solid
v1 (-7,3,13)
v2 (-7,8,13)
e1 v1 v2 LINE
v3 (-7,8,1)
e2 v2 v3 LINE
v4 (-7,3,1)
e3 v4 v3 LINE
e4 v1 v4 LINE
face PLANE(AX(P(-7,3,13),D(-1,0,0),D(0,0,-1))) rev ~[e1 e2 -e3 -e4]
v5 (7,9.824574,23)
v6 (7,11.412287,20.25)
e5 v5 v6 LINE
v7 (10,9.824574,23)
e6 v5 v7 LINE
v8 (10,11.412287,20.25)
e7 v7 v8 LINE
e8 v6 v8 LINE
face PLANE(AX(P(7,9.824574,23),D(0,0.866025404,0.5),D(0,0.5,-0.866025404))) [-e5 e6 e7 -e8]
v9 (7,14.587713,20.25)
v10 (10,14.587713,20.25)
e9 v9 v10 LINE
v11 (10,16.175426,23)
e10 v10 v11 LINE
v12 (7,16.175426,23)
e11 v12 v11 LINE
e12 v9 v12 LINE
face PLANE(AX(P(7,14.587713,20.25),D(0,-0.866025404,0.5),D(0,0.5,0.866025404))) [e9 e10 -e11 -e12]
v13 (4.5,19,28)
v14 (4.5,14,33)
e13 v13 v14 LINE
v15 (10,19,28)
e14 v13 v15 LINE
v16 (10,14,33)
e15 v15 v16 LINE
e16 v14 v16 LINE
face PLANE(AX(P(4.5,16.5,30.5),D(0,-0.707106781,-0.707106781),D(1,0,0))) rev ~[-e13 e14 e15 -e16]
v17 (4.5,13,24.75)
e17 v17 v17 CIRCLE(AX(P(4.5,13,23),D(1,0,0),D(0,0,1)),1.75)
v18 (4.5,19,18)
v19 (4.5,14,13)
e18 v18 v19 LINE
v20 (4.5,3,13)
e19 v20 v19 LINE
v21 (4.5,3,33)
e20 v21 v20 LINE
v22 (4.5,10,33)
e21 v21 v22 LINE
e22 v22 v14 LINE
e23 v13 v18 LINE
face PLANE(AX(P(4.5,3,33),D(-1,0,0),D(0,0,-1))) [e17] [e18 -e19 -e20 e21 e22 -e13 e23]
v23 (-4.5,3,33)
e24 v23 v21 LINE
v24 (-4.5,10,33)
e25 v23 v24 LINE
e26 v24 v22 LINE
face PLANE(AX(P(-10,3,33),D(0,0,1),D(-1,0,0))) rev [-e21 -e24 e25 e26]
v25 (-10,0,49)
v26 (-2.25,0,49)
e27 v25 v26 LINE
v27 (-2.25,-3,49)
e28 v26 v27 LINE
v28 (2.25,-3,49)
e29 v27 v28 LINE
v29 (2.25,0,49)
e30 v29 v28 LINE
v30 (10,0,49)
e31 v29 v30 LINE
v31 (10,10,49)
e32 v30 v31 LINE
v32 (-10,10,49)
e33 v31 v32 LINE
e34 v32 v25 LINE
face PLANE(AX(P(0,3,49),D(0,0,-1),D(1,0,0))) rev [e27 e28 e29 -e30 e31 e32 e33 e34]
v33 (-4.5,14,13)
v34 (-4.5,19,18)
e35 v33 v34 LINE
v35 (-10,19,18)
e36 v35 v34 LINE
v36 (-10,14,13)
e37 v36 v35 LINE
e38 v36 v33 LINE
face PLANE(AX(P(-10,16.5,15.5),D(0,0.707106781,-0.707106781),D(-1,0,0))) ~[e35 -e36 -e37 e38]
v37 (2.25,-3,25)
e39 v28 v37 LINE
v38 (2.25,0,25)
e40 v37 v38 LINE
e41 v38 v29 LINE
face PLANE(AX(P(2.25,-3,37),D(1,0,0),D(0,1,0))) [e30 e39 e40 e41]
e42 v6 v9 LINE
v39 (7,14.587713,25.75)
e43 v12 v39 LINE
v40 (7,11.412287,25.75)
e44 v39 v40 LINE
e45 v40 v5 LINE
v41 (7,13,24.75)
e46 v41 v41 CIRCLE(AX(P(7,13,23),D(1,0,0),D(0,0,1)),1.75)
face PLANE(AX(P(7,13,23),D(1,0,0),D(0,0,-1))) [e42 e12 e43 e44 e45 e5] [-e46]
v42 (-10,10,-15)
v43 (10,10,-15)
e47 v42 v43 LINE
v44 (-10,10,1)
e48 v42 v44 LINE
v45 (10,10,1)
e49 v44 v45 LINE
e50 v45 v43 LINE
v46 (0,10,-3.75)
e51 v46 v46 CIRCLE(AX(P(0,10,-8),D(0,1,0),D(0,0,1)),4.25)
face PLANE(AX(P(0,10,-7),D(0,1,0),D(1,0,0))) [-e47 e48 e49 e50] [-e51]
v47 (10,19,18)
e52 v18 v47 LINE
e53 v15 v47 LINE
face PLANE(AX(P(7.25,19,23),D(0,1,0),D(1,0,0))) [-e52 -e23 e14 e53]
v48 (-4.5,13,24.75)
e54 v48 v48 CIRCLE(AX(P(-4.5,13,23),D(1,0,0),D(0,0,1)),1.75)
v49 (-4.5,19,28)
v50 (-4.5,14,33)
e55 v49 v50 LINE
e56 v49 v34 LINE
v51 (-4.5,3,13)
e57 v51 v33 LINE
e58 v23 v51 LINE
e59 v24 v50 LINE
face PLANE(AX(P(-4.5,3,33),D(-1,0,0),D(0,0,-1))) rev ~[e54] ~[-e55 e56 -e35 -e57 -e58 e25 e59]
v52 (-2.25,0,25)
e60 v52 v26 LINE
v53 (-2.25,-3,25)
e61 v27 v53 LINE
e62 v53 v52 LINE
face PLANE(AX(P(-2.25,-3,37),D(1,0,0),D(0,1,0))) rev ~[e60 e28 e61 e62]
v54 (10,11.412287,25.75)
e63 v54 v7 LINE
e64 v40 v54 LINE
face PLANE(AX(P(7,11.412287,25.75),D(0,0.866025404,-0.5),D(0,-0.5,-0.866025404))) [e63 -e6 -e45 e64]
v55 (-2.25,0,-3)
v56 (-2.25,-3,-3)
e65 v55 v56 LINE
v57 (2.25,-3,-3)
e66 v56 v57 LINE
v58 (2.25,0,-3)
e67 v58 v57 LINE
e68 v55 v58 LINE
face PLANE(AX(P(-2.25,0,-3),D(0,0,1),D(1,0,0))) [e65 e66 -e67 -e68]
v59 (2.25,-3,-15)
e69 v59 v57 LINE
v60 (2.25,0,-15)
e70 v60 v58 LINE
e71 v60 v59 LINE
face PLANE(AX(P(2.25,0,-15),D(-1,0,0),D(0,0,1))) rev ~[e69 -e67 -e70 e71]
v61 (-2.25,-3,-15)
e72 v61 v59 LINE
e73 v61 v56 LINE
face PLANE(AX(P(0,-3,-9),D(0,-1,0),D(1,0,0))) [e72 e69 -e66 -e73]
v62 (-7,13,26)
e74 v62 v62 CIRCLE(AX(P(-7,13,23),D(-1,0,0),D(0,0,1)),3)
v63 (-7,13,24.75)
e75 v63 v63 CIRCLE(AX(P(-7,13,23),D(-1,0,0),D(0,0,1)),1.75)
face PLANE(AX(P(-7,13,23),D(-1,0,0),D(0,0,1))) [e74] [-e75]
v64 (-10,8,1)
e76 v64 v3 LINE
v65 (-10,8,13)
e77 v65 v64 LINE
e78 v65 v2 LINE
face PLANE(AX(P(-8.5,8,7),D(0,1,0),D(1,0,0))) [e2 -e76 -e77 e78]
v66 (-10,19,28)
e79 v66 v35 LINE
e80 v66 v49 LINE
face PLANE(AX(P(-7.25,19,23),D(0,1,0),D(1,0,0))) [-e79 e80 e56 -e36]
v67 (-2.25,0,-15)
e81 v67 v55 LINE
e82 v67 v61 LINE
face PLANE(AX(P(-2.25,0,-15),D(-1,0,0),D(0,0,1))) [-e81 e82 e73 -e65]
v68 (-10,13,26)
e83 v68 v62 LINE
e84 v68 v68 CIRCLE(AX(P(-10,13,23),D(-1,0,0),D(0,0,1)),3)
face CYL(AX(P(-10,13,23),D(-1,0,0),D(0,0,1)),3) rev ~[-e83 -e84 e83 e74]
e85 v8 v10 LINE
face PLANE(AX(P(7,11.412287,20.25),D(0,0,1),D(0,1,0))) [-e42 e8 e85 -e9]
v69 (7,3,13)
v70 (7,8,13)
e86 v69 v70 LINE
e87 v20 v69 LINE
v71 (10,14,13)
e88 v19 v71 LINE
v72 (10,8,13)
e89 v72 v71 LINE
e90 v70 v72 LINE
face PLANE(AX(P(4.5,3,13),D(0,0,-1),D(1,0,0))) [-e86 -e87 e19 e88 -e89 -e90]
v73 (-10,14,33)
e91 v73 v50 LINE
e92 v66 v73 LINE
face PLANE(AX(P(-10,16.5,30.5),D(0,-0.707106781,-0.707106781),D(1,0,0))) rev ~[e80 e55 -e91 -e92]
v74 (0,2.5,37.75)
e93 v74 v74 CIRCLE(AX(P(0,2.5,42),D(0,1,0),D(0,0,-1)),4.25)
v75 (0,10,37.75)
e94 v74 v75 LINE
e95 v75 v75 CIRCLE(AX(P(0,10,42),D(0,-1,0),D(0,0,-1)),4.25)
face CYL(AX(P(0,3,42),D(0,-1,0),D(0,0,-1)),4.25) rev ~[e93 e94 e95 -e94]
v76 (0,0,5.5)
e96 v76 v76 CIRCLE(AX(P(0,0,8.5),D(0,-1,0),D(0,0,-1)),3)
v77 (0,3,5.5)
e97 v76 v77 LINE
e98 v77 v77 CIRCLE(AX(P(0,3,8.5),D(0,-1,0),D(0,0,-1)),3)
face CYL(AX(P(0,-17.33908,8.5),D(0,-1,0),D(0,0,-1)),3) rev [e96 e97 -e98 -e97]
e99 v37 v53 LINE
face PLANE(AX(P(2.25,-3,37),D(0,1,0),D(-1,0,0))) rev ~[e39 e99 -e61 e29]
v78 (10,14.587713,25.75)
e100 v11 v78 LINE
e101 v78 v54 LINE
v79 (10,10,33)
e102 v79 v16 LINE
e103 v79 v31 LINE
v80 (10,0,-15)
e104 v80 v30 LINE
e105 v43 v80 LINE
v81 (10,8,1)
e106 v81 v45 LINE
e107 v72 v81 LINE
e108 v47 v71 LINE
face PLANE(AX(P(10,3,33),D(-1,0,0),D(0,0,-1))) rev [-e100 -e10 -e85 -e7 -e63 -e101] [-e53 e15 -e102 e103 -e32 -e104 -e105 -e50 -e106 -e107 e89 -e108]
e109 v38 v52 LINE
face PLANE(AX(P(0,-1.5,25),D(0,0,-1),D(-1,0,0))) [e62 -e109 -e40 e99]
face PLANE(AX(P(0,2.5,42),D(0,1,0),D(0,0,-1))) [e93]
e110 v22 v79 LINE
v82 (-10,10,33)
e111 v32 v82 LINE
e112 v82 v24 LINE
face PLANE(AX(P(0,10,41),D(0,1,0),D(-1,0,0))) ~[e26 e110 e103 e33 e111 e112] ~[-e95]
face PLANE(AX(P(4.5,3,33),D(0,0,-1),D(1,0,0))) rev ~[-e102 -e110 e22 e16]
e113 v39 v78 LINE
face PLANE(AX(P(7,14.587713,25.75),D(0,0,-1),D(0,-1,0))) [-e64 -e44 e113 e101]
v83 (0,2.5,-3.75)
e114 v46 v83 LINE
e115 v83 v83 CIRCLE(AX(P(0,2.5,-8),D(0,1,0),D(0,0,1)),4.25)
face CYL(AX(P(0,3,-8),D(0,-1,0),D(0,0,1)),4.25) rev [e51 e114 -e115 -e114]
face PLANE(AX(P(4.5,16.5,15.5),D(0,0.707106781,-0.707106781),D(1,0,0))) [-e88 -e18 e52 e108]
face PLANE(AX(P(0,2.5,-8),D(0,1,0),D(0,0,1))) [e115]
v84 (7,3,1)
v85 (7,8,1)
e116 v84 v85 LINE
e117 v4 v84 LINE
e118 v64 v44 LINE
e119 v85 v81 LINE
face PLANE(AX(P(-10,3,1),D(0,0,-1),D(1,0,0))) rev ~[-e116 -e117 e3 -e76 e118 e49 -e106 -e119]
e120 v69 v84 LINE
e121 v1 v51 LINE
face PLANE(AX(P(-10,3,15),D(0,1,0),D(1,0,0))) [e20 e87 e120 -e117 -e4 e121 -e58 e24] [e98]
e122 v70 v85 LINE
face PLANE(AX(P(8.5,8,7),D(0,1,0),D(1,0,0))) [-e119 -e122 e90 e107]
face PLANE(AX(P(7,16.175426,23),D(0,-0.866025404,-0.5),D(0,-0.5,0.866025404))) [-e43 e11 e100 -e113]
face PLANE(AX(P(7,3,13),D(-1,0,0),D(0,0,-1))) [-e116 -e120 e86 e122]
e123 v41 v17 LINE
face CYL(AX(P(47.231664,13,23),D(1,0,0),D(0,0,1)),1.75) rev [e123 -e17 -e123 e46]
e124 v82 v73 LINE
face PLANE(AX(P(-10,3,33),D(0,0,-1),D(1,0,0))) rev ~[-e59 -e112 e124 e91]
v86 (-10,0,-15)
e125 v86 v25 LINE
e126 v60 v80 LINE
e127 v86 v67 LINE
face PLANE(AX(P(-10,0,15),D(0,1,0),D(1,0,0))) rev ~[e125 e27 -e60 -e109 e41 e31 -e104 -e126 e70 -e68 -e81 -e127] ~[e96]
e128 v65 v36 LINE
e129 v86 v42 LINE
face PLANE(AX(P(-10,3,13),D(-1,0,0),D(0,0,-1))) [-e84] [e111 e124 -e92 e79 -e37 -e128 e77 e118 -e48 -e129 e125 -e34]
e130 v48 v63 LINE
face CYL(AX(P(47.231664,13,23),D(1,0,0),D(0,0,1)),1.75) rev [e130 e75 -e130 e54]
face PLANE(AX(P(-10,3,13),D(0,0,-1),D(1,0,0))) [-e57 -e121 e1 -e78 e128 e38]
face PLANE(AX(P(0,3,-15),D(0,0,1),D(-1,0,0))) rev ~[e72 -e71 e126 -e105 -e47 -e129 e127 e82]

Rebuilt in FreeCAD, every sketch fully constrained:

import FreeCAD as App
import Part
import Sketcher
Q = App.Units.Quantity


def edges_at(feature, points):
    """Names of the edges that pass closest to the given points."""
    edges = feature.Shape.Edges
    near = lambda p: min(range(len(edges)), key=lambda i: edges[i].distToShape(Part.Vertex(*p))[0])
    return sorted({f"Edge{near(p) + 1}" for p in points})

doc = App.newDocument("Part")
params = doc.addObject("Spreadsheet::Sheet", "Params")
for row, (alias, value) in enumerate([
    ("sketch1_width", "20 mm"),
    ("sketch1_height", "30 mm"),
    ("pad1_length", "3 mm"),
    ("sketch2_height", "12 mm"),
    ("sketch2_width", "4.5 mm"),
    ("pad2_length", "3 mm"),
    ("sketch3_diameter", "14 mm"),
    ("sketch3_diameter2", "8.5 mm"),
    ("pad3_length", "7 mm"),
    ("sketch4_diameter", "8.5 mm"),
    ("pad4_length", "1 mm"),
    ("sketch5_diameter", "6 mm"),
    ("sketch6_diameter", "8.5 mm"),
    ("sketch6_width", "20 mm"),
    ("sketch6_height", "16 mm"),
    ("pad5_length", "7 mm"),
    ("sketch7_width", "20 mm"),
    ("sketch7_height", "3 mm"),
    ("pad6_length", "19 mm"),
    ("sketch8_height", "3 mm"),
    ("sketch8_width", "4.5 mm"),
    ("pad7_length", "12 mm"),
    ("sketch9_height", "20 mm"),
    ("sketch9_width", "5.5 mm"),
    ("pad8_length", "16 mm"),
    ("sketch10_diameter", "3.5 mm"),
    ("sketch11_diameter", "6 mm"),
    ("sketch11_diameter2", "3.5 mm"),
    ("pocket3_length", "3 mm"),
    ("sketch12_diameter", "3.5 mm"),
    ("pocket4_length", "3 mm"),
    ("chamfer_size", "5 mm"),
    ("sketch13_diameter", "8.5 mm"),
    ("pocket5_length", "1.5 mm"),
    ("sketch14_width", "3 mm"),
    ("sketch14_height", "12 mm"),
    ("pad9_length", "5 mm"),
], start=1):
    params.set(f"A{row}", alias)
    params.set(f"B{row}", "=" + value)
    params.setAlias(f"B{row}", alias)

body = doc.addObject("PartDesign::Body", "Body")

sketch1 = body.newObject("Sketcher::SketchObject", "Sketch")
sketch1.AttachmentSupport = (doc.getObject("XZ_Plane"), [""])
sketch1.MapMode = "FlatFace"
sketch1.addGeometry(Part.LineSegment(App.Vector(-10, -15, 0), App.Vector(-10, 15, 0)), False)
sketch1.addGeometry(Part.LineSegment(App.Vector(-10, 15, 0), App.Vector(10, 15, 0)), False)
sketch1.addGeometry(Part.LineSegment(App.Vector(10, 15, 0), App.Vector(10, -15, 0)), False)
sketch1.addGeometry(Part.LineSegment(App.Vector(10, -15, 0), App.Vector(-10, -15, 0)), False)
sketch1.addConstraint(Sketcher.Constraint("Coincident", 0, 2, 1, 1))
sketch1.addConstraint(Sketcher.Constraint("Coincident", 1, 2, 2, 1))
sketch1.addConstraint(Sketcher.Constraint("Coincident", 2, 2, 3, 1))
sketch1.addConstraint(Sketcher.Constraint("Coincident", 3, 2, 0, 1))
sketch1.addConstraint(Sketcher.Constraint("Vertical", 0))
sketch1.addConstraint(Sketcher.Constraint("Horizontal", 1))
sketch1.addConstraint(Sketcher.Constraint("Vertical", 2))
sketch1.addConstraint(Sketcher.Constraint("Horizontal", 3))
sketch1.addConstraint(Sketcher.Constraint("Symmetric", 0, 2, 2, 2, -1, 1))
sketch1.addConstraint(Sketcher.Constraint("DistanceX", 1, 1, 1, 2, 20.0))
sketch1.addConstraint(Sketcher.Constraint("DistanceY", 0, 1, 0, 2, 30.0))
sketch1.setExpression("Constraints[9]", "Params.sketch1_width")
sketch1.setExpression("Constraints[10]", "Params.sketch1_height")
pad1 = body.newObject("PartDesign::Pad", "Pad")
pad1.Profile = sketch1
pad1.setExpression("Length", "Params.pad1_length")
pad1.Reversed = True

sketch2 = body.newObject("Sketcher::SketchObject", "Sketch001")
sketch2.AttachmentSupport = (doc.getObject("XZ_Plane"), [""])
sketch2.MapMode = "FlatFace"
sketch2.addGeometry(Part.LineSegment(App.Vector(-2.2, -3, 0), App.Vector(-2.2, -15, 0)), False)
sketch2.addGeometry(Part.LineSegment(App.Vector(-2.2, -15, 0), App.Vector(2.2, -15, 0)), False)
sketch2.addGeometry(Part.LineSegment(App.Vector(2.2, -15, 0), App.Vector(2.2, -3, 0)), False)
sketch2.addGeometry(Part.LineSegment(App.Vector(2.2, -3, 0), App.Vector(-2.2, -3, 0)), False)
sketch2.addConstraint(Sketcher.Constraint("Coincident", 0, 2, 1, 1))
sketch2.addConstraint(Sketcher.Constraint("Coincident", 1, 2, 2, 1))
sketch2.addConstraint(Sketcher.Constraint("Coincident", 2, 2, 3, 1))
sketch2.addConstraint(Sketcher.Constraint("Coincident", 3, 2, 0, 1))
sketch2.addConstraint(Sketcher.Constraint("Vertical", 0))
sketch2.addConstraint(Sketcher.Constraint("Horizontal", 1))
sketch2.addConstraint(Sketcher.Constraint("Vertical", 2))
sketch2.addConstraint(Sketcher.Constraint("Horizontal", 3))
sketch2.addConstraint(Sketcher.Constraint("DistanceY", 0, 2, 0, 1, 12.0))
sketch2.addConstraint(Sketcher.Constraint("DistanceX", 1, 1, 1, 2, 4.5))
sketch2.addConstraint(Sketcher.Constraint("DistanceY", 0, 2, -1, 1, 15.0))
sketch2.addConstraint(Sketcher.Constraint("DistanceX", 0, 2, -1, 1, 2.25))
sketch2.setExpression("Constraints[8]", "Params.sketch2_height")
sketch2.setExpression("Constraints[9]", "Params.sketch2_width")
pad2 = body.newObject("PartDesign::Pad", "Pad001")
pad2.Profile = sketch2
pad2.setExpression("Length", "Params.pad2_length")

sketch3 = body.newObject("Sketcher::SketchObject", "Sketch002")
sketch3.AttachmentSupport = (doc.getObject("XZ_Plane"), [""])
sketch3.MapMode = "FlatFace"
sketch3.AttachmentOffset = App.Placement(App.Vector(0, 0, -3), App.Rotation())
sketch3.addGeometry(Part.Circle(App.Vector(0, -8, 0), App.Vector(0, 0, 1), 7), False)
sketch3.addGeometry(Part.Circle(App.Vector(0, -8, 0), App.Vector(0, 0, 1), 4.2), False)
sketch3.addConstraint(Sketcher.Constraint("Coincident", 1, 3, 0, 3))
sketch3.addConstraint(Sketcher.Constraint("PointOnObject", 0, 3, -2))
sketch3.addConstraint(Sketcher.Constraint("Diameter", 0, 14.0))
sketch3.addConstraint(Sketcher.Constraint("Diameter", 1, 8.5))
sketch3.addConstraint(Sketcher.Constraint("DistanceY", 0, 3, -1, 1, 8.0))
sketch3.setExpression("Constraints[2]", "Params.sketch3_diameter")
sketch3.setExpression("Constraints[3]", "Params.sketch3_diameter2")
pad3 = body.newObject("PartDesign::Pad", "Pad002")
pad3.Profile = sketch3
pad3.setExpression("Length", "Params.pad3_length")
pad3.Reversed = True

sketch4 = body.newObject("Sketcher::SketchObject", "Sketch003")
sketch4.AttachmentSupport = (doc.getObject("XZ_Plane"), [""])
sketch4.MapMode = "FlatFace"
sketch4.AttachmentOffset = App.Placement(App.Vector(0, 0, -3), App.Rotation())
sketch4.addGeometry(Part.Circle(App.Vector(0, -8, 0), App.Vector(0, 0, 1), 4.2), False)
sketch4.addConstraint(Sketcher.Constraint("PointOnObject", 0, 3, -2))
sketch4.addConstraint(Sketcher.Constraint("Diameter", 0, 8.5))
sketch4.addConstraint(Sketcher.Constraint("DistanceY", 0, 3, -1, 1, 8.0))
sketch4.setExpression("Constraints[1]", "Params.sketch4_diameter")
pad4 = body.newObject("PartDesign::Pad", "Pad003")
pad4.Profile = sketch4
pad4.setExpression("Length", "Params.pad4_length")
pad4.Reversed = True

sketch5 = body.newObject("Sketcher::SketchObject", "Sketch004")
sketch5.AttachmentSupport = (doc.getObject("XZ_Plane"), [""])
sketch5.MapMode = "FlatFace"
sketch5.AttachmentOffset = App.Placement(App.Vector(0, 0, -3), App.Rotation())
sketch5.addGeometry(Part.Circle(App.Vector(0, 8.5, 0), App.Vector(0, 0, 1), 3), False)
sketch5.addConstraint(Sketcher.Constraint("PointOnObject", 0, 3, -2))
sketch5.addConstraint(Sketcher.Constraint("Diameter", 0, 6.0))
sketch5.addConstraint(Sketcher.Constraint("DistanceY", -1, 1, 0, 3, 8.5))
sketch5.setExpression("Constraints[1]", "Params.sketch5_diameter")
pocket1 = body.newObject("PartDesign::Pocket", "Pocket")
pocket1.Profile = sketch5
pocket1.Type = "ThroughAll"
pocket1.Midplane = True

sketch6 = body.newObject("Sketcher::SketchObject", "Sketch005")
sketch6.AttachmentSupport = (doc.getObject("XZ_Plane"), [""])
sketch6.MapMode = "FlatFace"
sketch6.AttachmentOffset = App.Placement(App.Vector(0, 0, -3), App.Rotation())
sketch6.addGeometry(Part.LineSegment(App.Vector(10, -15, 0), App.Vector(-10, -15, 0)), False)
sketch6.addGeometry(Part.LineSegment(App.Vector(-10, -15, 0), App.Vector(-10, 1, 0)), False)
sketch6.addGeometry(Part.LineSegment(App.Vector(-10, 1, 0), App.Vector(10, 1, 0)), False)
sketch6.addGeometry(Part.LineSegment(App.Vector(10, 1, 0), App.Vector(10, -15, 0)), False)
sketch6.addGeometry(Part.Circle(App.Vector(0, -8, 0), App.Vector(0, 0, 1), 4.2), False)
sketch6.addConstraint(Sketcher.Constraint("Coincident", 0, 2, 1, 1))
sketch6.addConstraint(Sketcher.Constraint("Coincident", 1, 2, 2, 1))
sketch6.addConstraint(Sketcher.Constraint("Coincident", 2, 2, 3, 1))
sketch6.addConstraint(Sketcher.Constraint("Coincident", 3, 2, 0, 1))
sketch6.addConstraint(Sketcher.Constraint("Horizontal", 0))
sketch6.addConstraint(Sketcher.Constraint("Vertical", 1))
sketch6.addConstraint(Sketcher.Constraint("Horizontal", 2))
sketch6.addConstraint(Sketcher.Constraint("Vertical", 3))
sketch6.addConstraint(Sketcher.Constraint("PointOnObject", 4, 3, -2))
sketch6.addConstraint(Sketcher.Constraint("Diameter", 4, 8.5))
sketch6.addConstraint(Sketcher.Constraint("DistanceX", 0, 2, 0, 1, 20.0))
sketch6.addConstraint(Sketcher.Constraint("DistanceY", 1, 1, 1, 2, 16.0))
sketch6.addConstraint(Sketcher.Constraint("DistanceY", 4, 3, -1, 1, 8.0))
sketch6.addConstraint(Sketcher.Constraint("DistanceX", 0, 2, -1, 1, 10.0))
sketch6.addConstraint(Sketcher.Constraint("DistanceY", 0, 2, -1, 1, 15.0))
sketch6.setExpression("Constraints[9]", "Params.sketch6_diameter")
sketch6.setExpression("Constraints[10]", "Params.sketch6_width")
sketch6.setExpression("Constraints[11]", "Params.sketch6_height")
pad5 = body.newObject("PartDesign::Pad", "Pad004")
pad5.Profile = sketch6
pad5.setExpression("Length", "Params.pad5_length")
pad5.Reversed = True

sketch7 = body.newObject("Sketcher::SketchObject", "Sketch006")
sketch7.AttachmentSupport = (doc.getObject("XY_Plane"), [""])
sketch7.MapMode = "FlatFace"
sketch7.AttachmentOffset = App.Placement(App.Vector(0, 0, 15), App.Rotation())
sketch7.addGeometry(Part.LineSegment(App.Vector(-10, 3, 0), App.Vector(-10, 0, 0)), False)
sketch7.addGeometry(Part.LineSegment(App.Vector(-10, 0, 0), App.Vector(10, 0, 0)), False)
sketch7.addGeometry(Part.LineSegment(App.Vector(10, 0, 0), App.Vector(10, 3, 0)), False)
sketch7.addGeometry(Part.LineSegment(App.Vector(10, 3, 0), App.Vector(-10, 3, 0)), False)
sketch7.addConstraint(Sketcher.Constraint("Coincident", 0, 2, 1, 1))
sketch7.addConstraint(Sketcher.Constraint("Coincident", 1, 2, 2, 1))
sketch7.addConstraint(Sketcher.Constraint("Coincident", 2, 2, 3, 1))
sketch7.addConstraint(Sketcher.Constraint("Coincident", 3, 2, 0, 1))
sketch7.addConstraint(Sketcher.Constraint("Vertical", 0))
sketch7.addConstraint(Sketcher.Constraint("Horizontal", 1))
sketch7.addConstraint(Sketcher.Constraint("Vertical", 2))
sketch7.addConstraint(Sketcher.Constraint("Horizontal", 3))
sketch7.addConstraint(Sketcher.Constraint("Symmetric", 0, 2, 1, 2, -1, 1))
sketch7.addConstraint(Sketcher.Constraint("DistanceX", 1, 1, 1, 2, 20.0))
sketch7.addConstraint(Sketcher.Constraint("DistanceY", 0, 2, 0, 1, 3.0))
sketch7.setExpression("Constraints[9]", "Params.sketch7_width")
sketch7.setExpression("Constraints[10]", "Params.sketch7_height")
pad6 = body.newObject("PartDesign::Pad", "Pad005")
pad6.Profile = sketch7
pad6.setExpression("Length", "Params.pad6_length")
doc.recompute()

datumplane = body.newObject("PartDesign::Plane", "DatumPlane")
datumplane.AttachmentSupport = (doc.getObject("XY_Plane"), [""])
datumplane.MapMode = "FlatFace"
datumplane.AttachmentOffset = App.Placement(App.Vector(0, 0, 17), App.Rotation())
mirrored = body.newObject("PartDesign::Mirrored", "Mirrored")
mirrored.Originals = [pad1, pad2, pad3, pad4, pad5]
mirrored.MirrorPlane = (datumplane, [""])
body.Tip = mirrored

sketch8 = body.newObject("Sketcher::SketchObject", "Sketch007")
sketch8.AttachmentSupport = (doc.getObject("XY_Plane"), [""])
sketch8.MapMode = "FlatFace"
sketch8.AttachmentOffset = App.Placement(App.Vector(0, 0, 37), App.Rotation())
sketch8.addGeometry(Part.LineSegment(App.Vector(2.2, 0, 0), App.Vector(2.2, -3, 0)), False)
sketch8.addGeometry(Part.LineSegment(App.Vector(2.2, -3, 0), App.Vector(-2.2, -3, 0)), False)
sketch8.addGeometry(Part.LineSegment(App.Vector(-2.2, -3, 0), App.Vector(-2.2, 0, 0)), False)
sketch8.addGeometry(Part.LineSegment(App.Vector(-2.2, 0, 0), App.Vector(2.2, 0, 0)), False)
sketch8.addConstraint(Sketcher.Constraint("Coincident", 0, 2, 1, 1))
sketch8.addConstraint(Sketcher.Constraint("Coincident", 1, 2, 2, 1))
sketch8.addConstraint(Sketcher.Constraint("Coincident", 2, 2, 3, 1))
sketch8.addConstraint(Sketcher.Constraint("Coincident", 3, 2, 0, 1))
sketch8.addConstraint(Sketcher.Constraint("Vertical", 0))
sketch8.addConstraint(Sketcher.Constraint("Horizontal", 1))
sketch8.addConstraint(Sketcher.Constraint("Vertical", 2))
sketch8.addConstraint(Sketcher.Constraint("Horizontal", 3))
sketch8.addConstraint(Sketcher.Constraint("Symmetric", 2, 2, 3, 2, -1, 1))
sketch8.addConstraint(Sketcher.Constraint("DistanceY", 0, 2, 0, 1, 3.0))
sketch8.addConstraint(Sketcher.Constraint("DistanceX", 1, 2, 1, 1, 4.5))
sketch8.setExpression("Constraints[9]", "Params.sketch8_height")
sketch8.setExpression("Constraints[10]", "Params.sketch8_width")
pad7 = body.newObject("PartDesign::Pad", "Pad006")
pad7.Profile = sketch8
pad7.setExpression("Length", "Params.pad7_length")
pad7.Reversed = True

sketch9 = body.newObject("Sketcher::SketchObject", "Sketch008")
sketch9.AttachmentSupport = (doc.getObject("XZ_Plane"), [""])
sketch9.MapMode = "FlatFace"
sketch9.AttachmentOffset = App.Placement(App.Vector(0, 0, -3), App.Rotation())
sketch9.addGeometry(Part.LineSegment(App.Vector(-10, 13, 0), App.Vector(-10, 33, 0)), False)
sketch9.addGeometry(Part.LineSegment(App.Vector(-10, 33, 0), App.Vector(-4, 33, 0)), False)
sketch9.addGeometry(Part.LineSegment(App.Vector(-4, 33, 0), App.Vector(-4, 13, 0)), False)
sketch9.addGeometry(Part.LineSegment(App.Vector(-4, 13, 0), App.Vector(-10, 13, 0)), False)
sketch9.addGeometry(Part.LineSegment(App.Vector(4, 13, 0), App.Vector(4, 33, 0)), False)
sketch9.addGeometry(Part.LineSegment(App.Vector(4, 33, 0), App.Vector(10, 33, 0)), False)
sketch9.addGeometry(Part.LineSegment(App.Vector(10, 33, 0), App.Vector(10, 13, 0)), False)
sketch9.addGeometry(Part.LineSegment(App.Vector(10, 13, 0), App.Vector(4, 13, 0)), False)
sketch9.addConstraint(Sketcher.Constraint("Coincident", 0, 2, 1, 1))
sketch9.addConstraint(Sketcher.Constraint("Coincident", 1, 2, 2, 1))
sketch9.addConstraint(Sketcher.Constraint("Coincident", 2, 2, 3, 1))
sketch9.addConstraint(Sketcher.Constraint("Coincident", 3, 2, 0, 1))
sketch9.addConstraint(Sketcher.Constraint("Coincident", 4, 2, 5, 1))
sketch9.addConstraint(Sketcher.Constraint("Coincident", 5, 2, 6, 1))
sketch9.addConstraint(Sketcher.Constraint("Coincident", 6, 2, 7, 1))
sketch9.addConstraint(Sketcher.Constraint("Coincident", 7, 2, 4, 1))
sketch9.addConstraint(Sketcher.Constraint("Vertical", 0))
sketch9.addConstraint(Sketcher.Constraint("Horizontal", 1))
sketch9.addConstraint(Sketcher.Constraint("Vertical", 2))
sketch9.addConstraint(Sketcher.Constraint("Horizontal", 3))
sketch9.addConstraint(Sketcher.Constraint("Vertical", 4))
sketch9.addConstraint(Sketcher.Constraint("Horizontal", 5))
sketch9.addConstraint(Sketcher.Constraint("Vertical", 6))
sketch9.addConstraint(Sketcher.Constraint("Horizontal", 7))
sketch9.addConstraint(Sketcher.Constraint("Symmetric", 1, 2, 4, 2, -2))
sketch9.addConstraint(Sketcher.Constraint("Symmetric", 3, 2, 6, 2, -2))
sketch9.addConstraint(Sketcher.Constraint("DistanceY", 0, 1, 0, 2, 20.0))
sketch9.addConstraint(Sketcher.Constraint("DistanceX", 1, 1, 1, 2, 5.5))
sketch9.addConstraint(Sketcher.Constraint("DistanceX", 0, 2, -1, 1, 10.0))
sketch9.addConstraint(Sketcher.Constraint("DistanceY", -1, 1, 0, 2, 33.0))
sketch9.setExpression("Constraints[18]", "Params.sketch9_height")
sketch9.setExpression("Constraints[19]", "Params.sketch9_width")
pad8 = body.newObject("PartDesign::Pad", "Pad007")
pad8.Profile = sketch9
pad8.setExpression("Length", "Params.pad8_length")
pad8.Reversed = True

sketch10 = body.newObject("Sketcher::SketchObject", "Sketch009")
sketch10.AttachmentSupport = (doc.getObject("YZ_Plane"), [""])
sketch10.MapMode = "FlatFace"
sketch10.AttachmentOffset = App.Placement(App.Vector(0, 0, -10), App.Rotation())
sketch10.addGeometry(Part.Circle(App.Vector(13, 23, 0), App.Vector(0, 0, 1), 1.8), False)
sketch10.addConstraint(Sketcher.Constraint("Diameter", 0, 3.5))
sketch10.addConstraint(Sketcher.Constraint("DistanceX", -1, 1, 0, 3, 13.0))
sketch10.addConstraint(Sketcher.Constraint("DistanceY", -1, 1, 0, 3, 23.0))
sketch10.setExpression("Constraints[0]", "Params.sketch10_diameter")
pocket2 = body.newObject("PartDesign::Pocket", "Pocket001")
pocket2.Profile = sketch10
pocket2.Type = "ThroughAll"
pocket2.Midplane = True

sketch11 = body.newObject("Sketcher::SketchObject", "Sketch010")
sketch11.AttachmentSupport = (doc.getObject("YZ_Plane"), [""])
sketch11.MapMode = "FlatFace"
sketch11.AttachmentOffset = App.Placement(App.Vector(0, 0, -10), App.Rotation())
sketch11.addGeometry(Part.Circle(App.Vector(13, 23, 0), App.Vector(0, 0, 1), 3), False)
sketch11.addGeometry(Part.Circle(App.Vector(13, 23, 0), App.Vector(0, 0, 1), 1.8), False)
sketch11.addConstraint(Sketcher.Constraint("Coincident", 1, 3, 0, 3))
sketch11.addConstraint(Sketcher.Constraint("Diameter", 0, 6.0))
sketch11.addConstraint(Sketcher.Constraint("Diameter", 1, 3.5))
sketch11.addConstraint(Sketcher.Constraint("DistanceX", -1, 1, 0, 3, 13.0))
sketch11.addConstraint(Sketcher.Constraint("DistanceY", -1, 1, 0, 3, 23.0))
sketch11.setExpression("Constraints[1]", "Params.sketch11_diameter")
sketch11.setExpression("Constraints[2]", "Params.sketch11_diameter2")
pocket3 = body.newObject("PartDesign::Pocket", "Pocket002")
pocket3.Profile = sketch11
pocket3.setExpression("Length", "Params.pocket3_length")
pocket3.Reversed = True

sketch12 = body.newObject("Sketcher::SketchObject", "Sketch011")
sketch12.AttachmentSupport = (doc.getObject("YZ_Plane"), [""])
sketch12.MapMode = "FlatFace"
sketch12.AttachmentOffset = App.Placement(App.Vector(0, 0, 7), App.Rotation())
sketch12.addGeometry(Part.LineSegment(App.Vector(16.2, 23, 0), App.Vector(14.6, 25.8, 0)), False)
sketch12.addGeometry(Part.LineSegment(App.Vector(14.6, 25.8, 0), App.Vector(11.4, 25.8, 0)), False)
sketch12.addGeometry(Part.LineSegment(App.Vector(11.4, 25.8, 0), App.Vector(9.8, 23, 0)), False)
sketch12.addGeometry(Part.LineSegment(App.Vector(9.8, 23, 0), App.Vector(11.4, 20.2, 0)), False)
sketch12.addGeometry(Part.LineSegment(App.Vector(11.4, 20.2, 0), App.Vector(14.6, 20.2, 0)), False)
sketch12.addGeometry(Part.LineSegment(App.Vector(14.6, 20.2, 0), App.Vector(16.2, 23, 0)), False)
sketch12.addGeometry(Part.Circle(App.Vector(13, 23, 0), App.Vector(0, 0, 1), 1.8), False)
sketch12.addConstraint(Sketcher.Constraint("Coincident", 0, 2, 1, 1))
sketch12.addConstraint(Sketcher.Constraint("Coincident", 1, 2, 2, 1))
sketch12.addConstraint(Sketcher.Constraint("Coincident", 2, 2, 3, 1))
sketch12.addConstraint(Sketcher.Constraint("Coincident", 3, 2, 4, 1))
sketch12.addConstraint(Sketcher.Constraint("Coincident", 4, 2, 5, 1))
sketch12.addConstraint(Sketcher.Constraint("Coincident", 5, 2, 0, 1))
sketch12.addConstraint(Sketcher.Constraint("Horizontal", 1))
sketch12.addConstraint(Sketcher.Constraint("Horizontal", 4))
sketch12.addConstraint(Sketcher.Constraint("Parallel", 0, 3))
sketch12.addConstraint(Sketcher.Constraint("Parallel", 2, 5))
sketch12.addConstraint(Sketcher.Constraint("Horizontal", 6, 3, 2, 2))
sketch12.addConstraint(Sketcher.Constraint("Horizontal", 2, 2, 5, 2))
sketch12.addConstraint(Sketcher.Constraint("Vertical", 1, 2, 3, 2))
sketch12.addConstraint(Sketcher.Constraint("Vertical", 0, 2, 4, 2))
sketch12.addConstraint(Sketcher.Constraint("Diameter", 6, 3.5))
sketch12.addConstraint(Sketcher.Constraint("Angle", 0, Q("120 deg")))
sketch12.addConstraint(Sketcher.Constraint("DistanceX", -1, 1, 6, 3, 13.0))
sketch12.addConstraint(Sketcher.Constraint("DistanceY", -1, 1, 6, 3, 23.0))
sketch12.addConstraint(Sketcher.Constraint("DistanceY", 3, 2, 1, 2, 5.5))
sketch12.addConstraint(Sketcher.Constraint("DistanceX", 1, 2, 1, 1, 3.175426))
sketch12.addConstraint(Sketcher.Constraint("DistanceX", -1, 1, 0, 2, 14.587713))
sketch12.setExpression("Constraints[14]", "Params.sketch12_diameter")
pocket4 = body.newObject("PartDesign::Pocket", "Pocket003")
pocket4.Profile = sketch12
pocket4.setExpression("Length", "Params.pocket4_length")
pocket4.Reversed = True
doc.recompute()

chamfer = body.newObject("PartDesign::Chamfer", "Chamfer")
chamfer.Base = (pocket4, edges_at(pocket4, [
    (-7.25, 19, 13),
    (-7.25, 19, 33),
    (7.25, 19, 13),
    (7.25, 19, 33),
]))
chamfer.setExpression("Size", "Params.chamfer_size")

sketch13 = body.newObject("Sketcher::SketchObject", "Sketch012")
sketch13.AttachmentSupport = (doc.getObject("XZ_Plane"), [""])
sketch13.MapMode = "FlatFace"
sketch13.AttachmentOffset = App.Placement(App.Vector(0, 0, -2.5), App.Rotation())
sketch13.addGeometry(Part.Circle(App.Vector(0, 42, 0), App.Vector(0, 0, 1), 4.2), False)
sketch13.addGeometry(Part.Circle(App.Vector(0, -8, 0), App.Vector(0, 0, 1), 4.2), False)
sketch13.addConstraint(Sketcher.Constraint("Equal", 0, 1))
sketch13.addConstraint(Sketcher.Constraint("PointOnObject", 0, 3, -2))
sketch13.addConstraint(Sketcher.Constraint("PointOnObject", 1, 3, -2))
sketch13.addConstraint(Sketcher.Constraint("Diameter", 0, 8.5))
sketch13.addConstraint(Sketcher.Constraint("DistanceY", -1, 1, 0, 3, 42.0))
sketch13.addConstraint(Sketcher.Constraint("DistanceY", 1, 3, -1, 1, 8.0))
sketch13.setExpression("Constraints[3]", "Params.sketch13_diameter")
pocket5 = body.newObject("PartDesign::Pocket", "Pocket004")
pocket5.Profile = sketch13
pocket5.setExpression("Length", "Params.pocket5_length")

sketch14 = body.newObject("Sketcher::SketchObject", "Sketch013")
sketch14.AttachmentSupport = (doc.getObject("XZ_Plane"), [""])
sketch14.MapMode = "FlatFace"
sketch14.AttachmentOffset = App.Placement(App.Vector(0, 0, -3), App.Rotation())
sketch14.addGeometry(Part.LineSegment(App.Vector(-10, 1, 0), App.Vector(-10, 13, 0)), False)
sketch14.addGeometry(Part.LineSegment(App.Vector(-10, 13, 0), App.Vector(-7, 13, 0)), False)
sketch14.addGeometry(Part.LineSegment(App.Vector(-7, 13, 0), App.Vector(-7, 1, 0)), False)
sketch14.addGeometry(Part.LineSegment(App.Vector(-7, 1, 0), App.Vector(-10, 1, 0)), False)
sketch14.addGeometry(Part.LineSegment(App.Vector(7, 1, 0), App.Vector(7, 13, 0)), False)
sketch14.addGeometry(Part.LineSegment(App.Vector(7, 13, 0), App.Vector(10, 13, 0)), False)
sketch14.addGeometry(Part.LineSegment(App.Vector(10, 13, 0), App.Vector(10, 1, 0)), False)
sketch14.addGeometry(Part.LineSegment(App.Vector(10, 1, 0), App.Vector(7, 1, 0)), False)
sketch14.addConstraint(Sketcher.Constraint("Coincident", 0, 2, 1, 1))
sketch14.addConstraint(Sketcher.Constraint("Coincident", 1, 2, 2, 1))
sketch14.addConstraint(Sketcher.Constraint("Coincident", 2, 2, 3, 1))
sketch14.addConstraint(Sketcher.Constraint("Coincident", 3, 2, 0, 1))
sketch14.addConstraint(Sketcher.Constraint("Coincident", 4, 2, 5, 1))
sketch14.addConstraint(Sketcher.Constraint("Coincident", 5, 2, 6, 1))
sketch14.addConstraint(Sketcher.Constraint("Coincident", 6, 2, 7, 1))
sketch14.addConstraint(Sketcher.Constraint("Coincident", 7, 2, 4, 1))
sketch14.addConstraint(Sketcher.Constraint("Vertical", 0))
sketch14.addConstraint(Sketcher.Constraint("Horizontal", 1))
sketch14.addConstraint(Sketcher.Constraint("Vertical", 2))
sketch14.addConstraint(Sketcher.Constraint("Horizontal", 3))
sketch14.addConstraint(Sketcher.Constraint("Vertical", 4))
sketch14.addConstraint(Sketcher.Constraint("Horizontal", 5))
sketch14.addConstraint(Sketcher.Constraint("Vertical", 6))
sketch14.addConstraint(Sketcher.Constraint("Horizontal", 7))
sketch14.addConstraint(Sketcher.Constraint("Symmetric", 1, 2, 4, 2, -2))
sketch14.addConstraint(Sketcher.Constraint("Symmetric", 3, 2, 6, 2, -2))
sketch14.addConstraint(Sketcher.Constraint("DistanceX", 1, 1, 1, 2, 3.0))
sketch14.addConstraint(Sketcher.Constraint("DistanceY", 0, 1, 0, 2, 12.0))
sketch14.addConstraint(Sketcher.Constraint("DistanceX", 0, 2, -1, 1, 10.0))
sketch14.addConstraint(Sketcher.Constraint("DistanceY", -1, 1, 0, 2, 13.0))
sketch14.setExpression("Constraints[18]", "Params.sketch14_width")
sketch14.setExpression("Constraints[19]", "Params.sketch14_height")
pad9 = body.newObject("PartDesign::Pad", "Pad008")
pad9.Profile = sketch14
pad9.setExpression("Length", "Params.pad9_length")
pad9.Reversed = True

doc.recompute()
